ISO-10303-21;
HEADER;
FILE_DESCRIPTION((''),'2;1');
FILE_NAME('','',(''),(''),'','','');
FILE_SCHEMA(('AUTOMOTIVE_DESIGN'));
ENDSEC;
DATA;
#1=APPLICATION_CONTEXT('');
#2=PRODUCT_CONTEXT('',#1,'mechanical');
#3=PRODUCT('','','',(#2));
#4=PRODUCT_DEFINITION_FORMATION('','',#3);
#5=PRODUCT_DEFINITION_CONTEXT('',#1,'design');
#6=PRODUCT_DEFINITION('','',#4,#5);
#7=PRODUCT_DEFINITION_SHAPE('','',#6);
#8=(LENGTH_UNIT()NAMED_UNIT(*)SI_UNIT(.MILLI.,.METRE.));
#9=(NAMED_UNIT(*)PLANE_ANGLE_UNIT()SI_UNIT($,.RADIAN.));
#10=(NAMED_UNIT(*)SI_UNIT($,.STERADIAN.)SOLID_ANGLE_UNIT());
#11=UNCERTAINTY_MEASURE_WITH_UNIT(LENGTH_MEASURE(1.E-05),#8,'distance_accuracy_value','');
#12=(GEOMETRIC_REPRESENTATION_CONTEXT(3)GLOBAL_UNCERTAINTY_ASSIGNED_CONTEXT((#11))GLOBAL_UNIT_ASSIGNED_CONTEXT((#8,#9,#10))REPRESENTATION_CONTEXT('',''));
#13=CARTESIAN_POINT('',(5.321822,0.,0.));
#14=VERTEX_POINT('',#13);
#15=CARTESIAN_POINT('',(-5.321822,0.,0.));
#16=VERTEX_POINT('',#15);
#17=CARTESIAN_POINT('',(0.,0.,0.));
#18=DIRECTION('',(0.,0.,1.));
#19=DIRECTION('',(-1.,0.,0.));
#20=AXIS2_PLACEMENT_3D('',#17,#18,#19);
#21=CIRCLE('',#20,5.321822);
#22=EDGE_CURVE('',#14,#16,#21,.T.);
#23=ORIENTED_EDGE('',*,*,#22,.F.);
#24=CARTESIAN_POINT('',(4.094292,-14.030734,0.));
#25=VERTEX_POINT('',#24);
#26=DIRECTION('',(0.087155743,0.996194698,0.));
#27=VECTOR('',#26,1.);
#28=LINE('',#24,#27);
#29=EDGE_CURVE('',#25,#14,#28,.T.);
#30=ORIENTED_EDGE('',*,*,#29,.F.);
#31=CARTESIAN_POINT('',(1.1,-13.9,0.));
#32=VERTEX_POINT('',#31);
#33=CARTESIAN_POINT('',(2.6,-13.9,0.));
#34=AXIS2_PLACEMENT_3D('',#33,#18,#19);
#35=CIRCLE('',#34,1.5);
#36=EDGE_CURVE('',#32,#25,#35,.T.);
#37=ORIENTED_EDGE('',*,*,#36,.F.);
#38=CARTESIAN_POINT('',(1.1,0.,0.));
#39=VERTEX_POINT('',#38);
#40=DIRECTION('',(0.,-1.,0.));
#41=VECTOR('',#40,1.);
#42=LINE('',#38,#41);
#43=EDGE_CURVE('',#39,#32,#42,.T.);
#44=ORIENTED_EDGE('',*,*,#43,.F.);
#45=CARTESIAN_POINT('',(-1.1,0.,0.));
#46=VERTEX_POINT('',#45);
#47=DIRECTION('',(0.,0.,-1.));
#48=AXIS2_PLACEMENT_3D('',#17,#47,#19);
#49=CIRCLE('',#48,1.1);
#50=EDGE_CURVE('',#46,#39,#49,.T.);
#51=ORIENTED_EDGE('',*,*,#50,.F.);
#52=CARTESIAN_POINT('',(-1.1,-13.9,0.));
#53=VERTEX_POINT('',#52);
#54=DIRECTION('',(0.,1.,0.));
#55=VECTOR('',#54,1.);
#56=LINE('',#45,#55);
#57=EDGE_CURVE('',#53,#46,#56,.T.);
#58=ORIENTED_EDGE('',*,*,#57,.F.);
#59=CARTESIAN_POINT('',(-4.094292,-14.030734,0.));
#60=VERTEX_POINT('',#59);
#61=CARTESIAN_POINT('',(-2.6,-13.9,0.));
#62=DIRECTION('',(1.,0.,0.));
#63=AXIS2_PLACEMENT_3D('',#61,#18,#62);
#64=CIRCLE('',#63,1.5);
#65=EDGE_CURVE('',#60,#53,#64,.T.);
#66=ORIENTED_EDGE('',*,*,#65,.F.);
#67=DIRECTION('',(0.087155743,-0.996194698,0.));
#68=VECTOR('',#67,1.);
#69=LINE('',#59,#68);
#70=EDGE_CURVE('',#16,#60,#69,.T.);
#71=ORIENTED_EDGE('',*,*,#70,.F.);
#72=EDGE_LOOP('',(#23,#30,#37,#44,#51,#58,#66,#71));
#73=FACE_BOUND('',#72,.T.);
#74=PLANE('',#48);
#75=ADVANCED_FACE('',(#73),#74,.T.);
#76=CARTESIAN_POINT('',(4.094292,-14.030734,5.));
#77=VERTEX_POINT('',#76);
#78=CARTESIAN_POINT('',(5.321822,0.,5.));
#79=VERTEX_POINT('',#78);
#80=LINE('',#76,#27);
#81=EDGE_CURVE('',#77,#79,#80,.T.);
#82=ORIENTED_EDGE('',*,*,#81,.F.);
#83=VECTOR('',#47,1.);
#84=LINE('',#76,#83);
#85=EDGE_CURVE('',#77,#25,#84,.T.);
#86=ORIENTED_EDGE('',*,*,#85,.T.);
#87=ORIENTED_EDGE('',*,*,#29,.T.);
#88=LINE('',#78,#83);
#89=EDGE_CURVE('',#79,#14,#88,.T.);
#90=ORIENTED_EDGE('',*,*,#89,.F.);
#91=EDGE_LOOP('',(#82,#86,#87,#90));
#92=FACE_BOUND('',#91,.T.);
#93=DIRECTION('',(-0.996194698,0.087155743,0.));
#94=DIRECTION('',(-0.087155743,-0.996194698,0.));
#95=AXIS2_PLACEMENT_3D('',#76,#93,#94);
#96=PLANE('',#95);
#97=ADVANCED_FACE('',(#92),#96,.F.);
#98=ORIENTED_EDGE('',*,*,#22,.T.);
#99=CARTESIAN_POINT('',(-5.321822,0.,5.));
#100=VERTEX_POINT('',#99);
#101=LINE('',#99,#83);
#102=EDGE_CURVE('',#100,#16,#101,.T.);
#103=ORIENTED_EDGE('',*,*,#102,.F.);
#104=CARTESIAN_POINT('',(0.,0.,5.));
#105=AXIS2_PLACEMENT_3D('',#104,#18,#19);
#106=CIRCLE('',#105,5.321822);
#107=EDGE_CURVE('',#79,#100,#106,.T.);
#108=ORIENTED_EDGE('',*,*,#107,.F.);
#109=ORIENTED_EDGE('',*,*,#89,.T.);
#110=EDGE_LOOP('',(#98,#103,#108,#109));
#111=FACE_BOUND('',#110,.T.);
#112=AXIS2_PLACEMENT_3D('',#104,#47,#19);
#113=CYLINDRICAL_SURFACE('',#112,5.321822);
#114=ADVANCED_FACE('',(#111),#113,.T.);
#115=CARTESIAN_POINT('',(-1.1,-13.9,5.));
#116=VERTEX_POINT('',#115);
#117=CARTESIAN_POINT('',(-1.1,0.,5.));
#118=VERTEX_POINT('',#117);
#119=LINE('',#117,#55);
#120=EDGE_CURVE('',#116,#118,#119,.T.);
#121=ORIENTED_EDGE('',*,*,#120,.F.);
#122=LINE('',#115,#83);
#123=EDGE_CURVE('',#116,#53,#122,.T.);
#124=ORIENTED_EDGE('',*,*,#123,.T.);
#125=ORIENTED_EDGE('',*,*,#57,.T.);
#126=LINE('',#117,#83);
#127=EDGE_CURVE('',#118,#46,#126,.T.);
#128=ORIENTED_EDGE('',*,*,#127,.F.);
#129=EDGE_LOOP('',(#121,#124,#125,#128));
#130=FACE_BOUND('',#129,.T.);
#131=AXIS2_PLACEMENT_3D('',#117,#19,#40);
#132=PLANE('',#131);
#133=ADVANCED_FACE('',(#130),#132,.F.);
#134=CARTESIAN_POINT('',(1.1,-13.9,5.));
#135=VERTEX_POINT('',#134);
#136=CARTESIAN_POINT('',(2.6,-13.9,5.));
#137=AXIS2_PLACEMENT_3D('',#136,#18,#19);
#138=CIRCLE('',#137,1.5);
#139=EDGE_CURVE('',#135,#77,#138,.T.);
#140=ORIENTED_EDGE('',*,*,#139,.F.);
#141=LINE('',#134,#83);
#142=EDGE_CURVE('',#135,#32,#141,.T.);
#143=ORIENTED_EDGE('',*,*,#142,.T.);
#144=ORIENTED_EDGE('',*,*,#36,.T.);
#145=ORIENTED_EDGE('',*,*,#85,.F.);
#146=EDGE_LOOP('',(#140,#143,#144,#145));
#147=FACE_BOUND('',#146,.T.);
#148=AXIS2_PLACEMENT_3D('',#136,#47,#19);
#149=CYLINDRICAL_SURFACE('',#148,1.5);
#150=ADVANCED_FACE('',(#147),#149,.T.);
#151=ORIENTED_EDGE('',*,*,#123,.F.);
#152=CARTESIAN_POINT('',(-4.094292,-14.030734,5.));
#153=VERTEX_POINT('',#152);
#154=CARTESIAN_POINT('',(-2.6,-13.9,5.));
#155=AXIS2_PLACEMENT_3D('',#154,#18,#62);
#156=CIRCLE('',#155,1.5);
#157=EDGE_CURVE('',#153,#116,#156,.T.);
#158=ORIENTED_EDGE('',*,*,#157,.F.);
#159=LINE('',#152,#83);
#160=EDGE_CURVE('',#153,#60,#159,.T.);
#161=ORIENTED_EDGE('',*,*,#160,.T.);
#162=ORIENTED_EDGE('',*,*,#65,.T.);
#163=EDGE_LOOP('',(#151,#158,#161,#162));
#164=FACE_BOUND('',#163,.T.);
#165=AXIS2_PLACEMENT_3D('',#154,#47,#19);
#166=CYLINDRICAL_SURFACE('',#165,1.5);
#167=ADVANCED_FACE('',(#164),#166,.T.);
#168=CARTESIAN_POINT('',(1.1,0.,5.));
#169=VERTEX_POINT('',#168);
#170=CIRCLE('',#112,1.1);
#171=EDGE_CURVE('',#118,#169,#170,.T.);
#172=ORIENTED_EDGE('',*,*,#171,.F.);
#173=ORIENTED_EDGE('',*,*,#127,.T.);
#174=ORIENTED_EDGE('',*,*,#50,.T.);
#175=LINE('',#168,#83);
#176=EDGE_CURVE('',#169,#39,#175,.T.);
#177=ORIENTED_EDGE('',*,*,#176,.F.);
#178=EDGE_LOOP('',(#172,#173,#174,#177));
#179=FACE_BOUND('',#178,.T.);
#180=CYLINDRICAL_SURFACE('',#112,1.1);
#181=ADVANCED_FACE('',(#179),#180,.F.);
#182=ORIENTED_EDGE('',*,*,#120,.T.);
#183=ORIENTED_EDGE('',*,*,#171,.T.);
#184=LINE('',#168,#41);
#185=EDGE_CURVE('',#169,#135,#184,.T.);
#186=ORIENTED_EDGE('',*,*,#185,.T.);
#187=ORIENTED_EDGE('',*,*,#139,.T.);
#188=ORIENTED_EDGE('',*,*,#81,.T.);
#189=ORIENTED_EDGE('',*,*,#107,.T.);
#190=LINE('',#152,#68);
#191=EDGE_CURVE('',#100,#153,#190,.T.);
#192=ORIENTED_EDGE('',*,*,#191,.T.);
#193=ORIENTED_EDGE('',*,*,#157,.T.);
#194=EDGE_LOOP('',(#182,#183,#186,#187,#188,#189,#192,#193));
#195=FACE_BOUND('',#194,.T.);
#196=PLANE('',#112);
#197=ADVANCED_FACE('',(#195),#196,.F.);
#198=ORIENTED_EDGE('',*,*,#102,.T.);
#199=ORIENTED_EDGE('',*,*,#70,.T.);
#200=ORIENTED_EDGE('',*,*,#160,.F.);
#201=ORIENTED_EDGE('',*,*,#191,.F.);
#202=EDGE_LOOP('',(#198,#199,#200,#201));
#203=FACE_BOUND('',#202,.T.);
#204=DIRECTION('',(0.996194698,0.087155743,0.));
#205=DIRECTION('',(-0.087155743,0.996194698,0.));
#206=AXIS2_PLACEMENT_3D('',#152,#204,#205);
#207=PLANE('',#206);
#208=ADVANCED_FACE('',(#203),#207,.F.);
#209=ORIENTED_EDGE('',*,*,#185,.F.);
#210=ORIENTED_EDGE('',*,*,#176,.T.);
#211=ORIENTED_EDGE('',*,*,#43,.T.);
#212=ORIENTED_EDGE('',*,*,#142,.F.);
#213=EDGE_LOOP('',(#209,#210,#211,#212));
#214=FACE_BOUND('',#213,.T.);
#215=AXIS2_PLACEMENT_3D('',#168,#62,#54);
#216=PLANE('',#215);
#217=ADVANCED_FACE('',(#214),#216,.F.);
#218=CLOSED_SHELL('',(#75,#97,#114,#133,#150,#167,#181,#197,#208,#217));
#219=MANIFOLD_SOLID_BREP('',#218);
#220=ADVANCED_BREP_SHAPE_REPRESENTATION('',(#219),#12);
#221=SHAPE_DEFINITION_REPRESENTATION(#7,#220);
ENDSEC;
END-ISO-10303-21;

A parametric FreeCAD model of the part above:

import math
import FreeCAD as App
import Part
import Sketcher
Q = App.Units.Quantity

doc = App.newDocument("Part")
body = doc.addObject("PartDesign::Body", "Body")

sketch1 = doc.addObject("Sketcher::SketchObject", "Sketch")
body.addObject(sketch1)
sketch1.AttachmentSupport = (doc.XY_Plane, [""])
sketch1.MapMode = "FlatFace"
sketch1.addGeometry(Part.LineSegment(App.Vector(-1.1, -13.9, 0), App.Vector(-1.1, 0, 0)), False)
sketch1.addGeometry(Part.ArcOfCircle(Part.Circle(App.Vector(0, 0, 0), App.Vector(0, 0, 1), 1.1), math.radians(0), math.radians(180)), False)
sketch1.addGeometry(Part.LineSegment(App.Vector(1.1, 0, 0), App.Vector(1.1, -13.9, 0)), False)
sketch1.addGeometry(Part.ArcOfCircle(Part.Circle(App.Vector(2.6, -13.9, 0), App.Vector(0, 0, 1), 1.5), math.radians(180), math.radians(355)), False)
sketch1.addGeometry(Part.LineSegment(App.Vector(4.1, -14, 0), App.Vector(5.3, 0, 0)), False)
sketch1.addGeometry(Part.ArcOfCircle(Part.Circle(App.Vector(0, 0, 0), App.Vector(0, 0, 1), 5.3), math.radians(0), math.radians(180)), False)
sketch1.addGeometry(Part.LineSegment(App.Vector(-5.3, 0, 0), App.Vector(-4.1, -14, 0)), False)
sketch1.addGeometry(Part.ArcOfCircle(Part.Circle(App.Vector(-2.6, -13.9, 0), App.Vector(0, 0, 1), 1.5), math.radians(-175), math.radians(0)), False)
sketch1.addConstraint(Sketcher.Constraint("Tangent", 0, 2, 1, 2))
sketch1.addConstraint(Sketcher.Constraint("Tangent", 1, 1, 2, 1))
sketch1.addConstraint(Sketcher.Constraint("Tangent", 2, 2, 3, 1))
sketch1.addConstraint(Sketcher.Constraint("Tangent", 3, 2, 4, 1))
sketch1.addConstraint(Sketcher.Constraint("Coincident", 4, 2, 5, 1))
sketch1.addConstraint(Sketcher.Constraint("Coincident", 5, 2, 6, 1))
sketch1.addConstraint(Sketcher.Constraint("Tangent", 6, 2, 7, 1))
sketch1.addConstraint(Sketcher.Constraint("Tangent", 7, 2, 0, 1))
sketch1.addConstraint(Sketcher.Constraint("Vertical", 0))
sketch1.addConstraint(Sketcher.Constraint("Vertical", 2))
sketch1.addConstraint(Sketcher.Constraint("Coincident", 1, 3, -1, 1))
sketch1.addConstraint(Sketcher.Constraint("Coincident", 5, 3, -1, 1))
sketch1.addConstraint(Sketcher.Constraint("Equal", 3, 7))
sketch1.addConstraint(Sketcher.Constraint("PointOnObject", 4, 2, -1))
sketch1.addConstraint(Sketcher.Constraint("PointOnObject", 5, 2, -1))
sketch1.addConstraint(Sketcher.Constraint("Horizontal", 3, 3, 7, 3))
sketch1.addConstraint(Sketcher.Constraint("Radius", 1, 1.1))
sketch1.addConstraint(Sketcher.Constraint("Radius", 3, 1.5))
sketch1.addConstraint(Sketcher.Constraint("Angle", 4, Q("85 deg")))
sketch1.addConstraint(Sketcher.Constraint("DistanceY", 0, 1, 0, 2, 13.9))
pad1 = doc.addObject("PartDesign::Pad", "Pad")
body.addObject(pad1)
pad1.Profile = sketch1
pad1.Length = 5

doc.recompute()
